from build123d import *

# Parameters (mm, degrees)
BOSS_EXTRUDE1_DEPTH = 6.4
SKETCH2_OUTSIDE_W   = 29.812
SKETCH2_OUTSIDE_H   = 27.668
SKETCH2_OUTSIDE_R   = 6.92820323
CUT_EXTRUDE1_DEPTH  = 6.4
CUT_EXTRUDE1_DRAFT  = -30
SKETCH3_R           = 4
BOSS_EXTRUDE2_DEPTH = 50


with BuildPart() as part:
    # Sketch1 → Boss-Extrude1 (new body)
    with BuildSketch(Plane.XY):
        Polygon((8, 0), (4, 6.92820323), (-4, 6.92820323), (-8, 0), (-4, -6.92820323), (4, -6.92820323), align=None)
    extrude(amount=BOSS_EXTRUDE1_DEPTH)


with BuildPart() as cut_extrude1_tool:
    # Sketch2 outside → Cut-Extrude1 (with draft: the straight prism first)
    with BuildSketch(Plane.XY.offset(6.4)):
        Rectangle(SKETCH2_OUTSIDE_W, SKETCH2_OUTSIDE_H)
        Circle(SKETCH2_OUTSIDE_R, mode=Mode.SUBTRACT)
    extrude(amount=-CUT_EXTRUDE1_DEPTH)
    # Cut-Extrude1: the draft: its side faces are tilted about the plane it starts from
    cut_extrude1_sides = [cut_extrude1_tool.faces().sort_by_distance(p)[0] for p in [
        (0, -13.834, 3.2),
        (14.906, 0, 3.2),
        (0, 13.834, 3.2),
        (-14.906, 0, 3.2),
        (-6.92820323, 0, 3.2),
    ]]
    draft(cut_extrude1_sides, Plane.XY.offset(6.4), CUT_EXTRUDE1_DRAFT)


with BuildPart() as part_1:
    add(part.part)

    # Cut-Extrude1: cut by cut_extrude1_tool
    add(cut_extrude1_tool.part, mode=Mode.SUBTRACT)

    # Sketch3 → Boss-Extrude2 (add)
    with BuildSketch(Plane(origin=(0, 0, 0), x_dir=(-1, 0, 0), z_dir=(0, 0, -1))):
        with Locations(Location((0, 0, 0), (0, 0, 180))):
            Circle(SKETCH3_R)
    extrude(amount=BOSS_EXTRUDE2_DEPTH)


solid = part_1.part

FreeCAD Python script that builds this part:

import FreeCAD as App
import Part
import Sketcher

V = App.Vector
Q = App.Units.Quantity


def faces_at(feature, points):
    """Names of the faces that lie closest to the given points."""
    faces = feature.Shape.Faces
    near = lambda p: min(range(len(faces)), key=lambda i: faces[i].distToShape(Part.Vertex(*p))[0])
    return sorted({f"Face{near(p) + 1}" for p in points})


def add_polygon(sketch, points):
    """Adds a closed chain of lines whose ends are joined by coincident constraints."""
    first, n = sketch.GeometryCount, len(points)
    for a, b in zip(points, points[1:] + points[:1]):
        sketch.addGeometry(Part.LineSegment(App.Vector(*a, 0), App.Vector(*b, 0)), False)
    for i in range(n):
        sketch.addConstraint(Sketcher.Constraint("Coincident", first + i, 2, first + (i + 1) % n, 1))

doc = App.newDocument("Part")
params = doc.addObject("Spreadsheet::Sheet", "Params")
for row, (alias, value) in enumerate([
    ("sketch1_width", "8 mm"),
    ("sketch1_length", "8 mm"),
    ("pad1_length", "6.4 mm"),
    ("pad2_length", "6.4 mm"),
    ("draft_angle", "30 deg"),
    ("sketch3_diameter", "8 mm"),
    ("pad3_length", "50 mm"),
], start=1):
    params.set(f"A{row}", alias)
    params.set(f"B{row}", "=" + value)
    params.setAlias(f"B{row}", alias)

body = doc.addObject("PartDesign::Body", "Body")

# Sketch on XY plane
sketch1 = body.newObject("Sketcher::SketchObject", "Sketch")
sketch1.AttachmentSupport = (doc.getObject("XY_Plane"), [""])
sketch1.MapMode = "FlatFace"
add_polygon(sketch1, [(8, 0), (4, 7), (-4, 7), (-8, 0), (-4, -7), (4, -7)])  # lines 0-5
sketch1.addConstraint(Sketcher.Constraint("Horizontal", 1))
sketch1.addConstraint(Sketcher.Constraint("Horizontal", 4))
sketch1.addConstraint(Sketcher.Constraint("Symmetric", 0, 2, 3, 2, -1, 1))
sketch1.addConstraint(Sketcher.Constraint("Symmetric", 2, 2, 5, 2, -1, 1))
sketch1.addConstraint(Sketcher.Constraint("PointOnObject", 2, 2, -1))
sketch1.addConstraint(Sketcher.Constraint("Parallel", 2, 5))
sketch1.addConstraint(Sketcher.Constraint("Vertical", 1, 2, 3, 2))
sketch1.addConstraint(Sketcher.Constraint("DistanceX", 1, 2, 1, 1, 8.0))
sketch1.addConstraint(Sketcher.Constraint("Angle", 0, Q("120 deg")))
sketch1.addConstraint(Sketcher.Constraint("Distance", 0, 8.0))
sketch1.setExpression("Constraints[13]", "Params.sketch1_width")
sketch1.setExpression("Constraints[15]", "Params.sketch1_length")
pad1 = body.newObject("PartDesign::Pad", "Pad")
pad1.Profile = sketch1
pad1.setExpression("Length", "Params.pad1_length")
body2 = doc.addObject("PartDesign::Body", "Body001")

# Sketch on XY plane
sketch2 = body2.newObject("Sketcher::SketchObject", "Sketch001")
sketch2.AttachmentSupport = (doc.getObject("XY_Plane001"), [""])
sketch2.MapMode = "FlatFace"
sketch2.AttachmentOffset = App.Placement(V(0, 0, 6.4), App.Rotation())
add_polygon(sketch2, [(-15, 14), (-15, -14), (15, -14), (15, 14)])  # lines 0-3
sketch2.addGeometry(Part.Circle(V(0, 0, 0), V(0, 0, 1), 7), False)  # 4
sketch2.addConstraint(Sketcher.Constraint("Vertical", 0))
sketch2.addConstraint(Sketcher.Constraint("Horizontal", 1))
sketch2.addConstraint(Sketcher.Constraint("Vertical", 2))
sketch2.addConstraint(Sketcher.Constraint("Horizontal", 3))
sketch2.addConstraint(Sketcher.Constraint("Coincident", 4, 3, -1, 1))
sketch2.addConstraint(Sketcher.Constraint("Symmetric", 0, 2, 2, 2, -1, 1))
sketch2.addConstraint(Sketcher.Constraint("DistanceX", 1, 1, 1, 2, 29.812))
sketch2.addConstraint(Sketcher.Constraint("DistanceY", 0, 2, 0, 1, 27.668))
sketch2.addConstraint(Sketcher.Constraint("Diameter", 4, 13.856406))
pad2 = body2.newObject("PartDesign::Pad", "Pad001")
pad2.Profile = sketch2
pad2.setExpression("Length", "Params.pad2_length")
pad2.Reversed = True
doc.recompute()

datumplane = body2.newObject("PartDesign::Plane", "DatumPlane")
datumplane.AttachmentSupport = (doc.getObject("XY_Plane001"), [""])
datumplane.MapMode = "FlatFace"
datumplane.AttachmentOffset = App.Placement(V(0, 0, 6.4), App.Rotation())
draft = body2.newObject("PartDesign::Draft", "Draft")
draft.Base = (pad2, faces_at(pad2, [
    (0, -13.834, 3.2),
    (14.906, 0, 3.2),
    (0, 13.834, 3.2),
    (-14.906, 0, 3.2),
    (-6.928, 0, 3.2),
]))
draft.NeutralPlane = (datumplane, [""])
draft.setExpression("Angle", "Params.draft_angle")
draft.Reversed = True
doc.recompute()

boolean = body.newObject("PartDesign::Boolean", "Boolean")
boolean.Type = "Cut"
boolean.addObjects([body2])

# Sketch on XY plane
sketch3 = body.newObject("Sketcher::SketchObject", "Sketch002")
sketch3.AttachmentSupport = (doc.getObject("XY_Plane"), [""])
sketch3.MapMode = "FlatFace"
sketch3.addGeometry(Part.Circle(V(0, 0, 0), V(0, 0, 1), 4), False)
sketch3.addConstraint(Sketcher.Constraint("Coincident", 0, 3, -1, 1))
sketch3.addConstraint(Sketcher.Constraint("Diameter", 0, 8.0))
sketch3.setExpression("Constraints[1]", "Params.sketch3_diameter")
pad3 = body.newObject("PartDesign::Pad", "Pad002")
pad3.Profile = sketch3
pad3.setExpression("Length", "Params.pad3_length")
pad3.Reversed = True

doc.recompute()
